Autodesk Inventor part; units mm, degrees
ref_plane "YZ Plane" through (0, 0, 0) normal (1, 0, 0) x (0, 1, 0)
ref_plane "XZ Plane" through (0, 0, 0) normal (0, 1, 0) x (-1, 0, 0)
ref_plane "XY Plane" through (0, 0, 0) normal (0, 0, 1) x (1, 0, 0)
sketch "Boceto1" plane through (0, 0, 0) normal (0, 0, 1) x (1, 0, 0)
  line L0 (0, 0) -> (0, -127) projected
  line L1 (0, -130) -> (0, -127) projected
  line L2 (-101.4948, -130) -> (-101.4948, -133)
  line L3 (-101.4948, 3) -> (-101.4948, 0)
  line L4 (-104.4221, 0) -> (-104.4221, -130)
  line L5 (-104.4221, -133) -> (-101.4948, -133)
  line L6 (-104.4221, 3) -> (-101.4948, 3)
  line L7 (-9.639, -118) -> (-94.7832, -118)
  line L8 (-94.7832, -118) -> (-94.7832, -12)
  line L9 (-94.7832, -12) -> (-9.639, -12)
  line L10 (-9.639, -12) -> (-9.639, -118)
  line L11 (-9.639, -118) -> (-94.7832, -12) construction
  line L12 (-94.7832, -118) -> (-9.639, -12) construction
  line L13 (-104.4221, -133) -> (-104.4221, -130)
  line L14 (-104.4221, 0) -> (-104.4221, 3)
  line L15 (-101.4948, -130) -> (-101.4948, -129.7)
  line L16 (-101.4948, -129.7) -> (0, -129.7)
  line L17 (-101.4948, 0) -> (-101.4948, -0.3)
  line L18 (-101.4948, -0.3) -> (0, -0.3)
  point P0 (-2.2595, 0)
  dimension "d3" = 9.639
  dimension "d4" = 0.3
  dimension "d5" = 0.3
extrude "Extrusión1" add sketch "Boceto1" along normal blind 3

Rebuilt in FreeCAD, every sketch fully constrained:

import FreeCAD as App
import Part
import Sketcher

V = App.Vector
Q = App.Units.Quantity

doc = App.newDocument("Part")
params = doc.addObject("Spreadsheet::Sheet", "Params")
for row, (alias, value) in enumerate([
    ("sketch1_height", "136 mm"),
    ("sketch1_height2", "106 mm"),
    ("sketch1_height3", "129.4 mm"),
    ("pad1_length", "3 mm"),
], start=1):
    params.set(f"A{row}", alias)
    params.set(f"B{row}", "=" + value)
    params.setAlias(f"B{row}", alias)

body = doc.addObject("PartDesign::Body", "Body")

sketch1 = body.newObject("Sketcher::SketchObject", "Sketch")
sketch1.AttachmentSupport = (doc.getObject("XY_Plane"), [""])
sketch1.MapMode = "FlatFace"
sketch1.addGeometry([
    Part.LineSegment(V(0, -129.7, 0), V(0, -0.3, 0)),
    Part.LineSegment(V(0, -0.3, 0), V(-101.5, -0.3, 0)),
    Part.LineSegment(V(-101.5, -0.3, 0), V(-101.5, 3, 0)),
    Part.LineSegment(V(-101.5, 3, 0), V(-104.4, 3, 0)),
    Part.LineSegment(V(-104.4, 3, 0), V(-104.4, -133, 0)),
    Part.LineSegment(V(-104.4, -133, 0), V(-101.5, -133, 0)),
    Part.LineSegment(V(-101.5, -133, 0), V(-101.5, -129.7, 0)),
    Part.LineSegment(V(-101.5, -129.7, 0), V(0, -129.7, 0)),
    Part.LineSegment(V(-9.6, -12, 0), V(-9.6, -118, 0)),
    Part.LineSegment(V(-9.6, -118, 0), V(-94.8, -118, 0)),
    Part.LineSegment(V(-94.8, -118, 0), V(-94.8, -12, 0)),
    Part.LineSegment(V(-94.8, -12, 0), V(-9.6, -12, 0)),
], False)
sketch1.addConstraint([
    Sketcher.Constraint("Coincident", 0, 2, 1, 1),
    Sketcher.Constraint("Coincident", 1, 2, 2, 1),
    Sketcher.Constraint("Coincident", 2, 2, 3, 1),
    Sketcher.Constraint("Coincident", 3, 2, 4, 1),
    Sketcher.Constraint("Coincident", 4, 2, 5, 1),
    Sketcher.Constraint("Coincident", 5, 2, 6, 1),
    Sketcher.Constraint("Coincident", 6, 2, 7, 1),
    Sketcher.Constraint("Coincident", 7, 2, 0, 1),
    Sketcher.Constraint("Coincident", 8, 2, 9, 1),
    Sketcher.Constraint("Coincident", 9, 2, 10, 1),
    Sketcher.Constraint("Coincident", 10, 2, 11, 1),
    Sketcher.Constraint("Coincident", 11, 2, 8, 1),
    Sketcher.Constraint("Vertical", 0),
    Sketcher.Constraint("Horizontal", 1),
    Sketcher.Constraint("Vertical", 2),
    Sketcher.Constraint("Horizontal", 3),
    Sketcher.Constraint("Vertical", 4),
    Sketcher.Constraint("Horizontal", 5),
    Sketcher.Constraint("Vertical", 6),
    Sketcher.Constraint("Horizontal", 7),
    Sketcher.Constraint("Vertical", 8),
    Sketcher.Constraint("Horizontal", 9),
    Sketcher.Constraint("Vertical", 10),
    Sketcher.Constraint("Horizontal", 11),
    Sketcher.Constraint("PointOnObject", 0, 2, -2),
    Sketcher.Constraint("Vertical", 2, 2, 5, 2),
    Sketcher.Constraint("Equal", 2, 6),
    Sketcher.Constraint("DistanceY", 0, 2, -1, 1, Q("0.3 mm")),
    Sketcher.Constraint("DistanceY", 4, 2, 4, 1, Q("136 mm")),
    Sketcher.Constraint("DistanceY", 8, 2, 8, 1, Q("106 mm")),
    Sketcher.Constraint("DistanceY", 0, 1, 0, 2, Q("129.4 mm")),
    Sketcher.Constraint("DistanceX", 8, 2, -1, 1, Q("9.639 mm")),
    Sketcher.Constraint("DistanceY", 8, 2, -1, 1, Q("118 mm")),
    Sketcher.Constraint("DistanceX", 4, 2, 9, 2, Q("9.639 mm")),
    Sketcher.Constraint("DistanceX", 1, 2, 1, 1, Q("101.4948 mm")),
    Sketcher.Constraint("DistanceX", 3, 2, 3, 1, Q("2.9273 mm")),
])
sketch1.setExpression("Constraints[28]", "Params.sketch1_height")
sketch1.setExpression("Constraints[29]", "Params.sketch1_height2")
sketch1.setExpression("Constraints[30]", "Params.sketch1_height3")
pad1 = body.newObject("PartDesign::Pad", "Pad")
pad1.Profile = sketch1
pad1.setExpression("Length", "Params.pad1_length")

doc.recompute()
